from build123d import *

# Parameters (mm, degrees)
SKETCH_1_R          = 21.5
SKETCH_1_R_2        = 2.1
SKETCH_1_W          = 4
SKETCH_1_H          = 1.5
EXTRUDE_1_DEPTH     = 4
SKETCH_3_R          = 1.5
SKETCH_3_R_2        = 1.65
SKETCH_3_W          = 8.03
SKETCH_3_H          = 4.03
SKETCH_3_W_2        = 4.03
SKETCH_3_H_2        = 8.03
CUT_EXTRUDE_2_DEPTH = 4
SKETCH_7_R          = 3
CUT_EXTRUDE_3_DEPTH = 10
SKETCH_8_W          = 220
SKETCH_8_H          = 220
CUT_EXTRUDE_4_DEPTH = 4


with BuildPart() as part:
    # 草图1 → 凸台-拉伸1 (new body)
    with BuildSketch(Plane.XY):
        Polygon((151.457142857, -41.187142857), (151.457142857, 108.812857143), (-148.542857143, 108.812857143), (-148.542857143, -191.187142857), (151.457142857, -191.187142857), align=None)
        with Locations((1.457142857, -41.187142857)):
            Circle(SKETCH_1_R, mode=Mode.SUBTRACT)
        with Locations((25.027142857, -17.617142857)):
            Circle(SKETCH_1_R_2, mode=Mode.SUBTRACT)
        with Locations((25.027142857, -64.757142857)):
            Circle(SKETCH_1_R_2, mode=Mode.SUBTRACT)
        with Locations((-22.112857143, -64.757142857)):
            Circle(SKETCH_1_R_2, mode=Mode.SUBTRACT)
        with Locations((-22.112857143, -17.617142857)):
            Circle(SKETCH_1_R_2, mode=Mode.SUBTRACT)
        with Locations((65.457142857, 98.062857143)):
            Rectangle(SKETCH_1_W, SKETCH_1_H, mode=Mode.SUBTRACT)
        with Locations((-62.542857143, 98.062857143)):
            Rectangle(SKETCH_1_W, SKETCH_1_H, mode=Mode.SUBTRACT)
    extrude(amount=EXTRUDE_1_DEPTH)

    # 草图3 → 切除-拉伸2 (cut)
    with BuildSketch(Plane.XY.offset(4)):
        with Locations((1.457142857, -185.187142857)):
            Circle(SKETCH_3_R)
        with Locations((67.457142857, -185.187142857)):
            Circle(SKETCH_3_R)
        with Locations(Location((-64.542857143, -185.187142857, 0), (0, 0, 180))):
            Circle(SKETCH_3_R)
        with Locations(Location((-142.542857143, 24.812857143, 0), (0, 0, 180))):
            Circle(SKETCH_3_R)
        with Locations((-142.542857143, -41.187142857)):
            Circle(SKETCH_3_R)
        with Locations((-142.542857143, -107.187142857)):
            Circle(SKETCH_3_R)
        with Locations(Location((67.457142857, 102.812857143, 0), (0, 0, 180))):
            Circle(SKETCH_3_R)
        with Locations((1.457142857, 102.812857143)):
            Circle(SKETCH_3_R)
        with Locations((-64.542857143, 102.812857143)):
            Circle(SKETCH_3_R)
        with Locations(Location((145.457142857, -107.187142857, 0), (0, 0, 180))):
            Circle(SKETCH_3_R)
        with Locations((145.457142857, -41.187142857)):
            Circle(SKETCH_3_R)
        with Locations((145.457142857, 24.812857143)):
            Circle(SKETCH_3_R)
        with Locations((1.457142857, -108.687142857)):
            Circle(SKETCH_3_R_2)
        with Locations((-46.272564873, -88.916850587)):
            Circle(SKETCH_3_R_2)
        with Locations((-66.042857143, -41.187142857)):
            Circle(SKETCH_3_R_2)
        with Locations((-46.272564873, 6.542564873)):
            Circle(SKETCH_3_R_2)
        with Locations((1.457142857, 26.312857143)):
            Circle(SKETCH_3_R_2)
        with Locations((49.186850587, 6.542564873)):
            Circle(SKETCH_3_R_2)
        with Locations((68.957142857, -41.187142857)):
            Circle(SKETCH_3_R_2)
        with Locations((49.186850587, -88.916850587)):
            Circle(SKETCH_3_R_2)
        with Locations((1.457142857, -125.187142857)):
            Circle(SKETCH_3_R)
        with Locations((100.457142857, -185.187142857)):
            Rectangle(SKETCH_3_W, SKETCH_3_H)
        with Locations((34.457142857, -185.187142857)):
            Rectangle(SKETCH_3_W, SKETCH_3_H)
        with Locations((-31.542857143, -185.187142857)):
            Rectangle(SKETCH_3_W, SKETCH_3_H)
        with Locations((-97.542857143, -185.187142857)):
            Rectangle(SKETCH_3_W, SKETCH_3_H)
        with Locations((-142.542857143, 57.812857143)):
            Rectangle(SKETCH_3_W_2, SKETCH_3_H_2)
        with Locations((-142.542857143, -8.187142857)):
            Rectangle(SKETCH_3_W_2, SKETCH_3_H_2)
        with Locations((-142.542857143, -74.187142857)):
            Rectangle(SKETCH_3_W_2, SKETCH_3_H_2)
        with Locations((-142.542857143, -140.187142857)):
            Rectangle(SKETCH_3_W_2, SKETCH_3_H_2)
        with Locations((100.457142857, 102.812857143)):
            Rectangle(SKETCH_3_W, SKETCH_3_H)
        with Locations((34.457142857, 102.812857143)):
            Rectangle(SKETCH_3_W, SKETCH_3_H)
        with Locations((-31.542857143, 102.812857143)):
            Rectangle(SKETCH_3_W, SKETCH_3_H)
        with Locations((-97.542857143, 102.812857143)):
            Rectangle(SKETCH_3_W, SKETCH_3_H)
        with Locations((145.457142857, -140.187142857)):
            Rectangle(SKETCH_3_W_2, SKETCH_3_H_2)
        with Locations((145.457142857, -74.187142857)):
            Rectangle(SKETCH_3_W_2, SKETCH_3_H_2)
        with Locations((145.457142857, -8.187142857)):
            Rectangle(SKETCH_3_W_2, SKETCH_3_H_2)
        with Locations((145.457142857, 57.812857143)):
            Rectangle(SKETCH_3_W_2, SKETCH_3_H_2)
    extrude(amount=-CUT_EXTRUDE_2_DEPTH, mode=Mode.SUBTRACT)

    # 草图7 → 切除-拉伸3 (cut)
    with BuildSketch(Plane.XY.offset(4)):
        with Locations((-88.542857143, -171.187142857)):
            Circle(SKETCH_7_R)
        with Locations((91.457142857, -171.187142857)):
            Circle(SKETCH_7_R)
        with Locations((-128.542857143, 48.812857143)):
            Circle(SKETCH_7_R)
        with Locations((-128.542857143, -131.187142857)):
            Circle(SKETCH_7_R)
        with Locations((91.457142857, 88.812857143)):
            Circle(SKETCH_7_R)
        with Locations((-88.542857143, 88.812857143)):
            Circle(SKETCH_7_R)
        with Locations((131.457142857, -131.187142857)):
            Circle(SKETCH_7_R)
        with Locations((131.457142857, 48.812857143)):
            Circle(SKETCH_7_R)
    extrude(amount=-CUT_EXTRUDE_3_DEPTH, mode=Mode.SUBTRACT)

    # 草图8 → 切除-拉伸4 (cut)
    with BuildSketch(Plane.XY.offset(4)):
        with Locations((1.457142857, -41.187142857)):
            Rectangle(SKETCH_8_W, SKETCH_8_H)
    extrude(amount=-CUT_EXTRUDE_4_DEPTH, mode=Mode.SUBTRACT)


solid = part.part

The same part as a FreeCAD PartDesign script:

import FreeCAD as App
import Part
import Sketcher
from FreeCAD import Vector
Q = App.Units.Quantity


def add_polygon(sketch, points):
    """Adds a closed chain of lines whose ends are joined by coincident constraints."""
    first, n = sketch.GeometryCount, len(points)
    for a, b in zip(points, points[1:] + points[:1]):
        sketch.addGeometry(Part.LineSegment(App.Vector(*a, 0), App.Vector(*b, 0)), False)
    for i in range(n):
        sketch.addConstraint(Sketcher.Constraint("Coincident", first + i, 2, first + (i + 1) % n, 1))

doc = App.newDocument("Part")
body = doc.addObject("PartDesign::Body", "Body")

# Sketch on XY plane
sketch1 = body.newObject("Sketcher::SketchObject", "Sketch")
sketch1.AttachmentSupport = (doc.getObject("XY_Plane"), [""])
sketch1.MapMode = "FlatFace"
add_polygon(sketch1, [(151.457143, 108.812857), (-148.542857, 108.812857), (-148.542857, -191.187143), (151.457143, -191.187143)])  # lines 0-3
sketch1.addGeometry(Part.Circle(Vector(-22.112857, -64.757143, 0), Vector(0, 0, 1), 2.1), False)  # 4
sketch1.addGeometry(Part.Circle(Vector(-22.112857, -17.617143, 0), Vector(0, 0, 1), 2.1), False)  # 5
sketch1.addGeometry(Part.Circle(Vector(25.027143, -64.757143, 0), Vector(0, 0, 1), 2.1), False)  # 6
sketch1.addGeometry(Part.Circle(Vector(1.457143, -41.187143, 0), Vector(0, 0, 1), 21.5), False)  # 7
sketch1.addGeometry(Part.Circle(Vector(25.027143, -17.617143, 0), Vector(0, 0, 1), 2.1), False)  # 8
add_polygon(sketch1, [(-60.542857, 97.312857), (-64.542857, 97.312857), (-64.542857, 98.812857), (-60.542857, 98.812857)])  # lines 9-12
add_polygon(sketch1, [(67.457143, 97.312857), (63.457143, 97.312857), (63.457143, 98.812857), (67.457143, 98.812857)])  # lines 13-16
sketch1.addConstraint([
    Sketcher.Constraint("Horizontal", 0),
    Sketcher.Constraint("Vertical", 1),
    Sketcher.Constraint("Horizontal", 2),
    Sketcher.Constraint("Vertical", 3),
    Sketcher.Constraint("Horizontal", 9),
    Sketcher.Constraint("Vertical", 10),
    Sketcher.Constraint("Horizontal", 11),
    Sketcher.Constraint("Vertical", 12),
    Sketcher.Constraint("Horizontal", 13),
    Sketcher.Constraint("Vertical", 14),
    Sketcher.Constraint("Horizontal", 15),
    Sketcher.Constraint("Vertical", 16),
    Sketcher.Constraint("Equal", 4, 5),
    Sketcher.Constraint("Equal", 5, 6),
    Sketcher.Constraint("Equal", 6, 8),
    Sketcher.Constraint("Horizontal", 4, 3, 6, 3),
    Sketcher.Constraint("Horizontal", 5, 3, 8, 3),
    Sketcher.Constraint("Horizontal", 12, 2, 13, 2),
    Sketcher.Constraint("Horizontal", 11, 2, 14, 2),
    Sketcher.Constraint("Vertical", 4, 3, 5, 3),
    Sketcher.Constraint("Vertical", 6, 3, 8, 3),
    Sketcher.Constraint("Equal", 11, 13),
    Sketcher.Constraint("Equal", 2, 1),
    Sketcher.Constraint("Diameter", 7, Q("43 mm")),
    Sketcher.Constraint("Diameter", 4, Q("4.2 mm")),
    Sketcher.Constraint("DistanceX", 0, 2, 0, 1, Q("300 mm")),
    Sketcher.Constraint("DistanceX", 9, 2, 9, 1, Q("4 mm")),
    Sketcher.Constraint("DistanceY", 10, 1, 10, 2, Q("1.5 mm")),
    Sketcher.Constraint("DistanceX", 0, 2, 7, 3, Q("150 mm")),
    Sketcher.Constraint("DistanceY", 7, 3, 0, 2, Q("150 mm")),
    Sketcher.Constraint("DistanceX", 0, 2, 9, 2, Q("84 mm")),
    Sketcher.Constraint("DistanceY", 10, 2, 0, 2, Q("10 mm")),
    Sketcher.Constraint("DistanceX", 13, 2, 3, 2, Q("88 mm")),
    Sketcher.Constraint("DistanceY", 4, 3, 5, 3, Q("47.14 mm")),
    Sketcher.Constraint("DistanceX", 4, 3, 6, 3, Q("47.14 mm")),
    Sketcher.Constraint("DistanceX", 5, 3, 7, 3, Q("23.57 mm")),
    Sketcher.Constraint("DistanceY", 7, 3, 5, 3, Q("23.57 mm")),
    Sketcher.Constraint("DistanceX", 4, 3, -1, 1, Q("22.112857 mm")),
    Sketcher.Constraint("DistanceY", 4, 3, -1, 1, Q("64.757143 mm")),
])
pad1 = body.newObject("PartDesign::Pad", "Pad")
pad1.Profile = sketch1
pad1.Length = 4

# Sketch on XY plane
sketch2 = body.newObject("Sketcher::SketchObject", "Sketch001")
sketch2.AttachmentSupport = (doc.getObject("XY_Plane"), [""])
sketch2.MapMode = "FlatFace"
sketch2.AttachmentOffset = App.Placement(Vector(0, 0, 4), App.Rotation())
sketch2.addGeometry(Part.Circle(Vector(1.457143, -185.187143, 0), Vector(0, 0, 1), 1.5), False)  # 0
sketch2.addGeometry(Part.Circle(Vector(67.457143, -185.187143, 0), Vector(0, 0, 1), 1.5), False)  # 1
sketch2.addGeometry(Part.Circle(Vector(-64.542857, -185.187143, 0), Vector(0, 0, 1), 1.5), False)  # 2
sketch2.addGeometry(Part.Circle(Vector(-142.542857, 24.812857, 0), Vector(0, 0, 1), 1.5), False)  # 3
sketch2.addGeometry(Part.Circle(Vector(-142.542857, -41.187143, 0), Vector(0, 0, 1), 1.5), False)  # 4
sketch2.addGeometry(Part.Circle(Vector(-142.542857, -107.187143, 0), Vector(0, 0, 1), 1.5), False)  # 5
sketch2.addGeometry(Part.Circle(Vector(67.457143, 102.812857, 0), Vector(0, 0, 1), 1.5), False)  # 6
sketch2.addGeometry(Part.Circle(Vector(1.457143, 102.812857, 0), Vector(0, 0, 1), 1.5), False)  # 7
sketch2.addGeometry(Part.Circle(Vector(-64.542857, 102.812857, 0), Vector(0, 0, 1), 1.5), False)  # 8
sketch2.addGeometry(Part.Circle(Vector(145.457143, -107.187143, 0), Vector(0, 0, 1), 1.5), False)  # 9
sketch2.addGeometry(Part.Circle(Vector(145.457143, -41.187143, 0), Vector(0, 0, 1), 1.5), False)  # 10
sketch2.addGeometry(Part.Circle(Vector(145.457143, 24.812857, 0), Vector(0, 0, 1), 1.5), False)  # 11
sketch2.addGeometry(Part.Circle(Vector(1.457143, -108.687143, 0), Vector(0, 0, 1), 1.65), False)  # 12
sketch2.addGeometry(Part.Circle(Vector(-46.272565, -88.916851, 0), Vector(0, 0, 1), 1.65), False)  # 13
sketch2.addGeometry(Part.Circle(Vector(-66.042857, -41.187143, 0), Vector(0, 0, 1), 1.65), False)  # 14
sketch2.addGeometry(Part.Circle(Vector(-46.272565, 6.542565, 0), Vector(0, 0, 1), 1.65), False)  # 15
sketch2.addGeometry(Part.Circle(Vector(1.457143, 26.312857, 0), Vector(0, 0, 1), 1.65), False)  # 16
sketch2.addGeometry(Part.Circle(Vector(49.186851, 6.542565, 0), Vector(0, 0, 1), 1.65), False)  # 17
sketch2.addGeometry(Part.Circle(Vector(68.957143, -41.187143, 0), Vector(0, 0, 1), 1.65), False)  # 18
sketch2.addGeometry(Part.Circle(Vector(49.186851, -88.916851, 0), Vector(0, 0, 1), 1.65), False)  # 19
sketch2.addGeometry(Part.Circle(Vector(1.457143, -125.187143, 0), Vector(0, 0, 1), 1.5), False)  # 20
add_polygon(sketch2, [(96.442143, -183.172143), (96.442143, -187.202143), (104.472143, -187.202143), (104.472143, -183.172143)])  # lines 21-24
add_polygon(sketch2, [(30.442143, -183.172143), (30.442143, -187.202143), (38.472143, -187.202143), (38.472143, -183.172143)])  # lines 25-28
add_polygon(sketch2, [(-35.557857, -183.172143), (-35.557857, -187.202143), (-27.527857, -187.202143), (-27.527857, -183.172143)])  # lines 29-32
add_polygon(sketch2, [(-101.557857, -183.172143), (-101.557857, -187.202143), (-93.527857, -187.202143), (-93.527857, -183.172143)])  # lines 33-36
add_polygon(sketch2, [(-144.557857, 61.827857), (-144.557857, 53.797857), (-140.527857, 53.797857), (-140.527857, 61.827857)])  # lines 37-40
add_polygon(sketch2, [(-144.557857, -4.172143), (-144.557857, -12.202143), (-140.527857, -12.202143), (-140.527857, -4.172143)])  # lines 41-44
add_polygon(sketch2, [(-144.557857, -70.172143), (-144.557857, -78.202143), (-140.527857, -78.202143), (-140.527857, -70.172143)])  # lines 45-48
add_polygon(sketch2, [(-144.557857, -136.172143), (-144.557857, -144.202143), (-140.527857, -144.202143), (-140.527857, -136.172143)])  # lines 49-52
add_polygon(sketch2, [(96.442143, 104.827857), (96.442143, 100.797857), (104.472143, 100.797857), (104.472143, 104.827857)])  # lines 53-56
add_polygon(sketch2, [(30.442143, 104.827857), (30.442143, 100.797857), (38.472143, 100.797857), (38.472143, 104.827857)])  # lines 57-60
add_polygon(sketch2, [(-35.557857, 104.827857), (-35.557857, 100.797857), (-27.527857, 100.797857), (-27.527857, 104.827857)])  # lines 61-64
add_polygon(sketch2, [(-101.557857, 104.827857), (-101.557857, 100.797857), (-93.527857, 100.797857), (-93.527857, 104.827857)])  # lines 65-68
add_polygon(sketch2, [(143.442143, -136.172143), (143.442143, -144.202143), (147.472143, -144.202143), (147.472143, -136.172143)])  # lines 69-72
add_polygon(sketch2, [(143.442143, -70.172143), (143.442143, -78.202143), (147.472143, -78.202143), (147.472143, -70.172143)])  # lines 73-76
add_polygon(sketch2, [(143.442143, -4.172143), (143.442143, -12.202143), (147.472143, -12.202143), (147.472143, -4.172143)])  # lines 77-80
add_polygon(sketch2, [(143.442143, 61.827857), (143.442143, 53.797857), (147.472143, 53.797857), (147.472143, 61.827857)])  # lines 81-84
sketch2.addConstraint([
    Sketcher.Constraint("Vertical", 21),
    Sketcher.Constraint("Horizontal", 22),
    Sketcher.Constraint("Vertical", 23),
    Sketcher.Constraint("Horizontal", 24),
    Sketcher.Constraint("Vertical", 25),
    Sketcher.Constraint("Horizontal", 26),
    Sketcher.Constraint("Vertical", 27),
    Sketcher.Constraint("Horizontal", 28),
    Sketcher.Constraint("Vertical", 29),
    Sketcher.Constraint("Horizontal", 30),
    Sketcher.Constraint("Vertical", 31),
    Sketcher.Constraint("Horizontal", 32),
    Sketcher.Constraint("Vertical", 33),
    Sketcher.Constraint("Horizontal", 34),
    Sketcher.Constraint("Vertical", 35),
    Sketcher.Constraint("Horizontal", 36),
    Sketcher.Constraint("Vertical", 37),
    Sketcher.Constraint("Horizontal", 38),
    Sketcher.Constraint("Vertical", 39),
    Sketcher.Constraint("Horizontal", 40),
    Sketcher.Constraint("Vertical", 41),
    Sketcher.Constraint("Horizontal", 42),
    Sketcher.Constraint("Vertical", 43),
    Sketcher.Constraint("Horizontal", 44),
    Sketcher.Constraint("Vertical", 45),
    Sketcher.Constraint("Horizontal", 46),
    Sketcher.Constraint("Vertical", 47),
    Sketcher.Constraint("Horizontal", 48),
    Sketcher.Constraint("Vertical", 49),
    Sketcher.Constraint("Horizontal", 50),
    Sketcher.Constraint("Vertical", 51),
    Sketcher.Constraint("Horizontal", 52),
    Sketcher.Constraint("Vertical", 53),
    Sketcher.Constraint("Horizontal", 54),
    Sketcher.Constraint("Vertical", 55),
    Sketcher.Constraint("Horizontal", 56),
    Sketcher.Constraint("Vertical", 57),
    Sketcher.Constraint("Horizontal", 58),
    Sketcher.Constraint("Vertical", 59),
    Sketcher.Constraint("Horizontal", 60),
    Sketcher.Constraint("Vertical", 61),
    Sketcher.Constraint("Horizontal", 62),
    Sketcher.Constraint("Vertical", 63),
    Sketcher.Constraint("Horizontal", 64),
    Sketcher.Constraint("Vertical", 65),
    Sketcher.Constraint("Horizontal", 66),
    Sketcher.Constraint("Vertical", 67),
    Sketcher.Constraint("Horizontal", 68),
    Sketcher.Constraint("Vertical", 69),
    Sketcher.Constraint("Horizontal", 70),
    Sketcher.Constraint("Vertical", 71),
    Sketcher.Constraint("Horizontal", 72),
    Sketcher.Constraint("Vertical", 73),
    Sketcher.Constraint("Horizontal", 74),
    Sketcher.Constraint("Vertical", 75),
    Sketcher.Constraint("Horizontal", 76),
    Sketcher.Constraint("Vertical", 77),
    Sketcher.Constraint("Horizontal", 78),
    Sketcher.Constraint("Vertical", 79),
    Sketcher.Constraint("Horizontal", 80),
    Sketcher.Constraint("Vertical", 81),
    Sketcher.Constraint("Horizontal", 82),
    Sketcher.Constraint("Vertical", 83),
    Sketcher.Constraint("Horizontal", 84),
    Sketcher.Constraint("Equal", 0, 1),
    Sketcher.Constraint("Equal", 1, 2),
    Sketcher.Constraint("Equal", 2, 3),
    Sketcher.Constraint("Equal", 3, 4),
    Sketcher.Constraint("Equal", 4, 5),
    Sketcher.Constraint("Equal", 5, 6),
    Sketcher.Constraint("Equal", 6, 7),
    Sketcher.Constraint("Equal", 7, 8),
    Sketcher.Constraint("Equal", 8, 9),
    Sketcher.Constraint("Equal", 9, 10),
    Sketcher.Constraint("Equal", 10, 11),
    Sketcher.Constraint("Equal", 12, 13),
    Sketcher.Constraint("Equal", 13, 14),
    Sketcher.Constraint("Equal", 14, 15),
    Sketcher.Constraint("Equal", 15, 16),
    Sketcher.Constraint("Equal", 16, 17),
    Sketcher.Constraint("Equal", 17, 18),
    Sketcher.Constraint("Equal", 18, 19),
    Sketcher.Constraint("Equal", 11, 20),
    Sketcher.Constraint("Horizontal", 0, 3, 1, 3),
    Sketcher.Constraint("Horizontal", 1, 3, 2, 3),
    Sketcher.Constraint("Horizontal", 6, 3, 7, 3),
    Sketcher.Constraint("Horizontal", 7, 3, 8, 3),
    Sketcher.Constraint("Horizontal", 5, 3, 9, 3),
    Sketcher.Constraint("Horizontal", 4, 3, 10, 3),
    Sketcher.Constraint("Horizontal", 3, 3, 11, 3),
    Sketcher.Constraint("Horizontal", 10, 3, 14, 3),
    Sketcher.Constraint("Horizontal", 15, 3, 17, 3),
    Sketcher.Constraint("Horizontal", 14, 3, 18, 3),
    Sketcher.Constraint("Horizontal", 13, 3, 19, 3),
    Sketcher.Constraint("Horizontal", 22, 2, 25, 2),
    Sketcher.Constraint("Horizontal", 24, 2, 27, 2),
    Sketcher.Constraint("Horizontal", 26, 2, 29, 2),
    Sketcher.Constraint("Horizontal", 28, 2, 31, 2),
    Sketcher.Constraint("Horizontal", 30, 2, 33, 2),
    Sketcher.Constraint("Horizontal", 32, 2, 35, 2),
    Sketcher.Constraint("Horizontal", 54, 2, 57, 2),
    Sketcher.Constraint("Horizontal", 56, 2, 59, 2),
    Sketcher.Constraint("Horizontal", 58, 2, 61, 2),
    Sketcher.Constraint("Horizontal", 60, 2, 63, 2),
    Sketcher.Constraint("Horizontal", 62, 2, 65, 2),
    Sketcher.Constraint("Horizontal", 64, 2, 67, 2),
    Sketcher.Constraint("Horizontal", 50, 2, 69, 2),
    Sketcher.Constraint("Horizontal", 52, 2, 71, 2),
    Sketcher.Constraint("Horizontal", 46, 2, 73, 2),
    Sketcher.Constraint("Horizontal", 48, 2, 75, 2),
    Sketcher.Constraint("Horizontal", 42, 2, 77, 2),
    Sketcher.Constraint("Horizontal", 44, 2, 79, 2),
    Sketcher.Constraint("Horizontal", 38, 2, 81, 2),
    Sketcher.Constraint("Horizontal", 40, 2, 83, 2),
    Sketcher.Constraint("Vertical", 3, 3, 4, 3),
    Sketcher.Constraint("Vertical", 4, 3, 5, 3),
    Sketcher.Constraint("Vertical", 1, 3, 6, 3),
    Sketcher.Constraint("Vertical", 0, 3, 7, 3),
    Sketcher.Constraint("Vertical", 2, 3, 8, 3),
    Sketcher.Constraint("Vertical", 9, 3, 10, 3),
    Sketcher.Constraint("Vertical", 10, 3, 11, 3),
    Sketcher.Constraint("Vertical", 7, 3, 12, 3),
    Sketcher.Constraint("Vertical", 13, 3, 15, 3),
    Sketcher.Constraint("Vertical", 12, 3, 16, 3),
    Sketcher.Constraint("Vertical", 17, 3, 19, 3),
    Sketcher.Constraint("Vertical", 16, 3, 20, 3),
    Sketcher.Constraint("Vertical", 40, 2, 41, 2),
    Sketcher.Constraint("Vertical", 39, 2, 42, 2),
    Sketcher.Constraint("Vertical", 44, 2, 45, 2),
    Sketcher.Constraint("Vertical", 43, 2, 46, 2),
    Sketcher.Constraint("Vertical", 48, 2, 49, 2),
    Sketcher.Constraint("Vertical", 47, 2, 50, 2),
    Sketcher.Constraint("Vertical", 24, 2, 53, 2),
    Sketcher.Constraint("Vertical", 23, 2, 54, 2),
    Sketcher.Constraint("Vertical", 28, 2, 57, 2),
    Sketcher.Constraint("Vertical", 27, 2, 58, 2),
    Sketcher.Constraint("Vertical", 32, 2, 61, 2),
    Sketcher.Constraint("Vertical", 31, 2, 62, 2),
    Sketcher.Constraint("Vertical", 36, 2, 65, 2),
    Sketcher.Constraint("Vertical", 35, 2, 66, 2),
    Sketcher.Constraint("Vertical", 72, 2, 73, 2),
    Sketcher.Constraint("Vertical", 71, 2, 74, 2),
    Sketcher.Constraint("Vertical", 76, 2, 77, 2),
    Sketcher.Constraint("Vertical", 75, 2, 78, 2),
    Sketcher.Constraint("Vertical", 80, 2, 81, 2),
    Sketcher.Constraint("Vertical", 79, 2, 82, 2),
    Sketcher.Constraint("Equal", 24, 26),
    Sketcher.Constraint("Equal", 28, 30),
    Sketcher.Constraint("Equal", 32, 34),
    Sketcher.Constraint("Equal", 52, 70),
    Sketcher.Constraint("Equal", 84, 21),
    Sketcher.Constraint("Equal", 68, 37),
    Sketcher.Constraint("Equal", 39, 41),
    Sketcher.Constraint("Equal", 43, 45),
    Sketcher.Constraint("Equal", 47, 49),
    Sketcher.Constraint("Equal", 35, 53),
    Sketcher.Constraint("Diameter", 0, Q("3 mm")),
    Sketcher.Constraint("Diameter", 12, Q("3.3 mm")),
    Sketcher.Constraint("DistanceX", 22, 1, 22, 2, Q("8.03 mm")),
    Sketcher.Constraint("DistanceX", 38, 1, 38, 2, Q("4.03 mm")),
    Sketcher.Constraint("DistanceY", 13, 3, -1, 1, Q("88.916851 mm")),
    Sketcher.Constraint("DistanceX", -1, 1, 17, 3, Q("49.186851 mm")),
    Sketcher.Constraint("DistanceX", -1, 1, 0, 3, Q("1.457143 mm")),
    Sketcher.Constraint("DistanceY", 0, 3, -1, 1, Q("185.187143 mm")),
    Sketcher.Constraint("DistanceX", -1, 1, 1, 3, Q("67.457143 mm")),
    Sketcher.Constraint("DistanceX", 2, 3, -1, 1, Q("64.542857 mm")),
    Sketcher.Constraint("DistanceX", 3, 3, -1, 1, Q("142.542857 mm")),
    Sketcher.Constraint("DistanceY", -1, 1, 3, 3, Q("24.812857 mm")),
    Sketcher.Constraint("DistanceY", 4, 3, -1, 1, Q("41.187143 mm")),
    Sketcher.Constraint("DistanceY", 5, 3, -1, 1, Q("107.187143 mm")),
    Sketcher.Constraint("DistanceY", -1, 1, 6, 3, Q("102.812857 mm")),
    Sketcher.Constraint("DistanceX", -1, 1, 9, 3, Q("145.457143 mm")),
    Sketcher.Constraint("DistanceY", 12, 3, -1, 1, Q("108.687143 mm")),
    Sketcher.Constraint("DistanceX", 13, 3, -1, 1, Q("46.272565 mm")),
    Sketcher.Constraint("DistanceX", 14, 3, -1, 1, Q("66.042857 mm")),
    Sketcher.Constraint("DistanceY", -1, 1, 15, 3, Q("6.542565 mm")),
    Sketcher.Constraint("DistanceY", -1, 1, 16, 3, Q("26.312857 mm")),
    Sketcher.Constraint("DistanceX", -1, 1, 18, 3, Q("68.957143 mm")),
    Sketcher.Constraint("DistanceY", 20, 3, -1, 1, Q("125.187143 mm")),
    Sketcher.Constraint("DistanceX", -1, 1, 21, 2, Q("96.442143 mm")),
    Sketcher.Constraint("DistanceY", 21, 2, -1, 1, Q("187.202143 mm")),
    Sketcher.Constraint("DistanceX", -1, 1, 25, 2, Q("30.442143 mm")),
    Sketcher.Constraint("DistanceX", 29, 2, -1, 1, Q("35.557857 mm")),
    Sketcher.Constraint("DistanceX", 33, 2, -1, 1, Q("101.557857 mm")),
    Sketcher.Constraint("DistanceX", 37, 2, -1, 1, Q("144.557857 mm")),
    Sketcher.Constraint("DistanceY", -1, 1, 37, 2, Q("53.797857 mm")),
    Sketcher.Constraint("DistanceY", 41, 2, -1, 1, Q("12.202143 mm")),
    Sketcher.Constraint("DistanceY", 45, 2, -1, 1, Q("78.202143 mm")),
    Sketcher.Constraint("DistanceY", 49, 2, -1, 1, Q("144.202143 mm")),
    Sketcher.Constraint("DistanceY", -1, 1, 53, 2, Q("100.797857 mm")),
    Sketcher.Constraint("DistanceX", -1, 1, 69, 2, Q("143.442143 mm")),
])
pocket1 = body.newObject("PartDesign::Pocket", "Pocket")
pocket1.Profile = sketch2
pocket1.Length = 4

# Sketch on XY plane
sketch3 = body.newObject("Sketcher::SketchObject", "Sketch002")
sketch3.AttachmentSupport = (doc.getObject("XY_Plane"), [""])
sketch3.MapMode = "FlatFace"
sketch3.AttachmentOffset = App.Placement(Vector(0, 0, 4), App.Rotation())
sketch3.addGeometry([
    Part.Circle(Vector(-88.542857, -171.187143, 0), Vector(0, 0, 1), 3),  # 0
    Part.Circle(Vector(91.457143, -171.187143, 0), Vector(0, 0, 1), 3),  # 1
    Part.Circle(Vector(-128.542857, 48.812857, 0), Vector(0, 0, 1), 3),  # 2
    Part.Circle(Vector(-128.542857, -131.187143, 0), Vector(0, 0, 1), 3),  # 3
    Part.Circle(Vector(91.457143, 88.812857, 0), Vector(0, 0, 1), 3),  # 4
    Part.Circle(Vector(-88.542857, 88.812857, 0), Vector(0, 0, 1), 3),  # 5
    Part.Circle(Vector(131.457143, -131.187143, 0), Vector(0, 0, 1), 3),  # 6
    Part.Circle(Vector(131.457143, 48.812857, 0), Vector(0, 0, 1), 3),  # 7
], False)
sketch3.addConstraint([
    Sketcher.Constraint("Equal", 0, 1),
    Sketcher.Constraint("Equal", 1, 2),
    Sketcher.Constraint("Equal", 2, 3),
    Sketcher.Constraint("Equal", 3, 4),
    Sketcher.Constraint("Equal", 4, 5),
    Sketcher.Constraint("Equal", 5, 6),
    Sketcher.Constraint("Equal", 6, 7),
    Sketcher.Constraint("Horizontal", 0, 3, 1, 3),
    Sketcher.Constraint("Horizontal", 4, 3, 5, 3),
    Sketcher.Constraint("Horizontal", 3, 3, 6, 3),
    Sketcher.Constraint("Horizontal", 2, 3, 7, 3),
    Sketcher.Constraint("Vertical", 2, 3, 3, 3),
    Sketcher.Constraint("Vertical", 1, 3, 4, 3),
    Sketcher.Constraint("Vertical", 0, 3, 5, 3),
    Sketcher.Constraint("Vertical", 6, 3, 7, 3),
    Sketcher.Constraint("Diameter", 0, Q("6 mm")),
    Sketcher.Constraint("DistanceX", 0, 3, 1, 3, Q("180 mm")),
    Sketcher.Constraint("DistanceX", 2, 3, 0, 3, Q("40 mm")),
    Sketcher.Constraint("DistanceY", 0, 3, 2, 3, Q("220 mm")),
    Sketcher.Constraint("DistanceY", 0, 3, 3, 3, Q("40 mm")),
    Sketcher.Constraint("DistanceY", 2, 3, 4, 3, Q("40 mm")),
    Sketcher.Constraint("DistanceX", 1, 3, 6, 3, Q("40 mm")),
    Sketcher.Constraint("DistanceX", 0, 3, -1, 1, Q("88.542857 mm")),
    Sketcher.Constraint("DistanceY", 0, 3, -1, 1, Q("171.187143 mm")),
])
pocket2 = body.newObject("PartDesign::Pocket", "Pocket001")
pocket2.Profile = sketch3
pocket2.Length = 10

# Sketch on XY plane
sketch4 = body.newObject("Sketcher::SketchObject", "Sketch003")
sketch4.AttachmentSupport = (doc.getObject("XY_Plane"), [""])
sketch4.MapMode = "FlatFace"
sketch4.AttachmentOffset = App.Placement(Vector(0, 0, 4), App.Rotation())
add_polygon(sketch4, [(-108.542857, 68.812857), (-108.542857, -151.187143), (111.457143, -151.187143), (111.457143, 68.812857)])  # lines 0-3
sketch4.addConstraint([
    Sketcher.Constraint("Vertical", 0),
    Sketcher.Constraint("Horizontal", 1),
    Sketcher.Constraint("Vertical", 2),
    Sketcher.Constraint("Horizontal", 3),
    Sketcher.Constraint("Equal", 3, 0),
    Sketcher.Constraint("DistanceX", 1, 1, 1, 2, Q("220 mm")),
    Sketcher.Constraint("DistanceX", 0, 2, -1, 1, Q("108.542857 mm")),
    Sketcher.Constraint("DistanceY", 0, 2, -1, 1, Q("151.187143 mm")),
])
pocket3 = body.newObject("PartDesign::Pocket", "Pocket002")
pocket3.Profile = sketch4
pocket3.Length = 4

doc.recompute()
